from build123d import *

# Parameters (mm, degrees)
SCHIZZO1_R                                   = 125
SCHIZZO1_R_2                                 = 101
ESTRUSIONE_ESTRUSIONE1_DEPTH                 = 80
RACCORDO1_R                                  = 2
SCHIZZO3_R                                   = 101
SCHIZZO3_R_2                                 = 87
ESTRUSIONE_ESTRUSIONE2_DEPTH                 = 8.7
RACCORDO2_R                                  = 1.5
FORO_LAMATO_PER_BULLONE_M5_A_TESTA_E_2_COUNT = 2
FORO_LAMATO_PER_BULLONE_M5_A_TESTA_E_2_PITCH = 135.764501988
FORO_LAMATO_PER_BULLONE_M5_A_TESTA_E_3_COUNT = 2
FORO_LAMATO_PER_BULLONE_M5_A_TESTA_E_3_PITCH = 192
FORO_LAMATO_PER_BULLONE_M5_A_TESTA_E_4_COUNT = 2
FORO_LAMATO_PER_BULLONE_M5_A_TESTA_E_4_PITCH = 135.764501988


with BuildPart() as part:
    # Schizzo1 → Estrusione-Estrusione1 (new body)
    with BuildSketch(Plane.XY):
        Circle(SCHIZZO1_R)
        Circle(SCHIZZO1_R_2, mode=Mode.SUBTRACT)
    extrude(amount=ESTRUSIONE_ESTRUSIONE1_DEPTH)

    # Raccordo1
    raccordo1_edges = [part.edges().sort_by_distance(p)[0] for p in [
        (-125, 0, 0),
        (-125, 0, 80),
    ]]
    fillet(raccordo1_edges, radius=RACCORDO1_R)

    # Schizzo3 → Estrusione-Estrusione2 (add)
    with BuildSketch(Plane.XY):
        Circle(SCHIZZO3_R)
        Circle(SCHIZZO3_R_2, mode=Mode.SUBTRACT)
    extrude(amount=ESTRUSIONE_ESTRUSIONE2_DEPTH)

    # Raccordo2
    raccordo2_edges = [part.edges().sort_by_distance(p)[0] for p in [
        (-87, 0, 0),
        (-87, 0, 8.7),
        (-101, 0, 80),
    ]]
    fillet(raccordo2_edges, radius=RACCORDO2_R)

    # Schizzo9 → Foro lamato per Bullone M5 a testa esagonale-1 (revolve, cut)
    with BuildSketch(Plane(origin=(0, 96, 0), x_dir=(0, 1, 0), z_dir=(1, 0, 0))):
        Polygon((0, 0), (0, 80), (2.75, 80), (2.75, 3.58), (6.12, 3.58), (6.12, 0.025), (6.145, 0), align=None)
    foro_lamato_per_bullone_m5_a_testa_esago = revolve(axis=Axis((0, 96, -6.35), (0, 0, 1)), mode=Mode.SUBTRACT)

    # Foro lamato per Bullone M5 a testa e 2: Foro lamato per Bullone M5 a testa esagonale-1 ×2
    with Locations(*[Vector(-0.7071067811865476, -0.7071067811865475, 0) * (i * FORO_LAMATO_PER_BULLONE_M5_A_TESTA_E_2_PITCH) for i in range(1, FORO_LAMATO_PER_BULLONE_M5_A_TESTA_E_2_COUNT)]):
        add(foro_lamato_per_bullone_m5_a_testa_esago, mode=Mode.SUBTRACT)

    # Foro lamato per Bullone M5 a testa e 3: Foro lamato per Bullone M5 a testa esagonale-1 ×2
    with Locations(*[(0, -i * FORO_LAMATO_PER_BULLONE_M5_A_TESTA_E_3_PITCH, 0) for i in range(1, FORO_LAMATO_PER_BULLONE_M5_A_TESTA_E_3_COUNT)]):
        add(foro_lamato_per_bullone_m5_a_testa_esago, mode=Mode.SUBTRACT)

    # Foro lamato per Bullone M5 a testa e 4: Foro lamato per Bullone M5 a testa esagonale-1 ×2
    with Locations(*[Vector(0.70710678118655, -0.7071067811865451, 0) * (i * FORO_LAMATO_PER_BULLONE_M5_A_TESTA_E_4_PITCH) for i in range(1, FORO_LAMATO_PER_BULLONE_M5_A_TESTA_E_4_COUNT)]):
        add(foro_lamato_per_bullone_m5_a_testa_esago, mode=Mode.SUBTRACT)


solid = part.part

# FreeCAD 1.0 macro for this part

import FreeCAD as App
import Part
import Sketcher

V = App.Vector
Q = App.Units.Quantity


def edges_at(feature, points):
    """Names of the edges that pass closest to the given points."""
    edges = feature.Shape.Edges
    near = lambda p: min(range(len(edges)), key=lambda i: edges[i].distToShape(Part.Vertex(*p))[0])
    return sorted({f"Edge{near(p) + 1}" for p in points})

doc = App.newDocument("Part")
body = doc.addObject("PartDesign::Body", "Body")

# Sketch on XY plane
sketch1 = doc.addObject("Sketcher::SketchObject", "Sketch")
body.addObject(sketch1)
sketch1.AttachmentSupport = (doc.XY_Plane, [""])
sketch1.MapMode = "FlatFace"
sketch1.addGeometry(Part.Circle(V(0, 0, 0), V(0, 0, 1), 125), False)
sketch1.addGeometry(Part.Circle(V(0, 0, 0), V(0, 0, 1), 101), False)
sketch1.addConstraint(Sketcher.Constraint("Coincident", 0, 3, -1, 1))
sketch1.addConstraint(Sketcher.Constraint("Coincident", 1, 3, -1, 1))
sketch1.addConstraint(Sketcher.Constraint("Diameter", 0, Q("250 mm")))
sketch1.addConstraint(Sketcher.Constraint("Diameter", 1, Q("202 mm")))
pad1 = doc.addObject("PartDesign::Pad", "Pad")
body.addObject(pad1)
pad1.Profile = sketch1
pad1.Length = 80
doc.recompute()

fillet = doc.addObject("PartDesign::Fillet", "Fillet")
body.addObject(fillet)
fillet.Base = (pad1, edges_at(pad1, [(-125, 0, 0), (-125, 0, 80)]))
fillet.Radius = 2

# Sketch on XY plane
sketch2 = doc.addObject("Sketcher::SketchObject", "Sketch001")
body.addObject(sketch2)
sketch2.AttachmentSupport = (doc.XY_Plane, [""])
sketch2.MapMode = "FlatFace"
sketch2.addGeometry(Part.Circle(V(0, 0, 0), V(0, 0, 1), 101), False)
sketch2.addGeometry(Part.Circle(V(0, 0, 0), V(0, 0, 1), 87), False)
sketch2.addConstraint(Sketcher.Constraint("Coincident", 0, 3, -1, 1))
sketch2.addConstraint(Sketcher.Constraint("Coincident", 1, 3, -1, 1))
sketch2.addConstraint(Sketcher.Constraint("Diameter", 0, Q("202 mm")))
sketch2.addConstraint(Sketcher.Constraint("Diameter", 1, Q("174 mm")))
pad2 = doc.addObject("PartDesign::Pad", "Pad001")
body.addObject(pad2)
pad2.Profile = sketch2
pad2.Length = 8.7
doc.recompute()

fillet2 = doc.addObject("PartDesign::Fillet", "Fillet001")
body.addObject(fillet2)
fillet2.Base = (pad2, edges_at(pad2, [(-87, 0, 0), (-87, 0, 8.7), (-101, 0, 80)]))
fillet2.Radius = 1.5

# Sketch on YZ plane
sketch3 = doc.addObject("Sketcher::SketchObject", "Sketch002")
body.addObject(sketch3)
sketch3.AttachmentSupport = (doc.YZ_Plane, [""])
sketch3.MapMode = "FlatFace"
sketch3.addGeometry(Part.LineSegment(V(96, 80, 0), V(96, 0, 0)), False)
sketch3.addGeometry(Part.LineSegment(V(96, 0, 0), V(102.145, 0, 0)), False)
sketch3.addGeometry(Part.LineSegment(V(102.145, 0, 0), V(102.12, 0.025, 0)), False)
sketch3.addGeometry(Part.LineSegment(V(102.12, 0.025, 0), V(102.12, 3.58, 0)), False)
sketch3.addGeometry(Part.LineSegment(V(102.12, 3.58, 0), V(98.75, 3.58, 0)), False)
sketch3.addGeometry(Part.LineSegment(V(98.75, 3.58, 0), V(98.75, 80, 0)), False)
sketch3.addGeometry(Part.LineSegment(V(98.75, 80, 0), V(96, 80, 0)), False)
sketch3.addGeometry(Part.LineSegment(V(96, 0, 0), V(96, 80, 0)), True)  # axis
sketch3.addConstraint(Sketcher.Constraint("Coincident", 0, 2, 1, 1))
sketch3.addConstraint(Sketcher.Constraint("Coincident", 1, 2, 2, 1))
sketch3.addConstraint(Sketcher.Constraint("Coincident", 2, 2, 3, 1))
sketch3.addConstraint(Sketcher.Constraint("Coincident", 3, 2, 4, 1))
sketch3.addConstraint(Sketcher.Constraint("Coincident", 4, 2, 5, 1))
sketch3.addConstraint(Sketcher.Constraint("Coincident", 5, 2, 6, 1))
sketch3.addConstraint(Sketcher.Constraint("Coincident", 6, 2, 0, 1))
sketch3.addConstraint(Sketcher.Constraint("Vertical", 0))
sketch3.addConstraint(Sketcher.Constraint("Horizontal", 1))
sketch3.addConstraint(Sketcher.Constraint("Vertical", 3))
sketch3.addConstraint(Sketcher.Constraint("Horizontal", 4))
sketch3.addConstraint(Sketcher.Constraint("Vertical", 5))
sketch3.addConstraint(Sketcher.Constraint("Horizontal", 6))
sketch3.addConstraint(Sketcher.Constraint("Vertical", 7))
sketch3.addConstraint(Sketcher.Constraint("Coincident", 7, 1, 0, 2))
sketch3.addConstraint(Sketcher.Constraint("PointOnObject", 0, 2, -1))
sketch3.addConstraint(Sketcher.Constraint("Horizontal", 5, 2, 7, 2))
sketch3.addConstraint(Sketcher.Constraint("DistanceY", 0, 2, 0, 1, Q("80 mm")))
sketch3.addConstraint(Sketcher.Constraint("Angle", 2, Q("135 deg")))
sketch3.addConstraint(Sketcher.Constraint("DistanceX", -1, 1, 0, 2, Q("96 mm")))
sketch3.addConstraint(Sketcher.Constraint("DistanceX", 4, 2, 4, 1, Q("3.37 mm")))
sketch3.addConstraint(Sketcher.Constraint("DistanceX", 6, 2, 6, 1, Q("2.75 mm")))
sketch3.addConstraint(Sketcher.Constraint("DistanceY", 5, 1, 5, 2, Q("76.42 mm")))
sketch3.addConstraint(Sketcher.Constraint("DistanceX", 1, 1, 1, 2, Q("6.145 mm")))
groove = doc.addObject("PartDesign::Groove", "Groove")
body.addObject(groove)
groove.Profile = sketch3
groove.ReferenceAxis = (sketch3, ["Axis0"])
groove.Angle = 360
doc.recompute()

datumline = doc.addObject("PartDesign::Line", "DatumLine")
body.addObject(datumline)
datumline.Placement = App.Placement(V(0, 0, 0), App.Rotation(V(0, 0, 1), V(-0.707106781, -0.707106781, 0)))
linearpattern = doc.addObject("PartDesign::LinearPattern", "LinearPattern")
body.addObject(linearpattern)
linearpattern.Originals = [groove]
linearpattern.Direction = (datumline, [""])
linearpattern.Mode = "offset"
linearpattern.Offset = 135.764502
linearpattern.Occurrences = 2
body.Tip = linearpattern
doc.recompute()

linearpattern2 = doc.addObject("PartDesign::LinearPattern", "LinearPattern001")
body.addObject(linearpattern2)
linearpattern2.Originals = [groove]
linearpattern2.Direction = (doc.Y_Axis, [""])
linearpattern2.Mode = "offset"
linearpattern2.Offset = 192
linearpattern2.Occurrences = 2
linearpattern2.Reversed = True
body.Tip = linearpattern2
doc.recompute()

datumline2 = doc.addObject("PartDesign::Line", "DatumLine001")
body.addObject(datumline2)
datumline2.Placement = App.Placement(V(0, 0, 0), App.Rotation(V(0, 0, 1), V(0.707106781, -0.707106781, 0)))
linearpattern3 = doc.addObject("PartDesign::LinearPattern", "LinearPattern002")
body.addObject(linearpattern3)
linearpattern3.Originals = [groove]
linearpattern3.Direction = (datumline2, [""])
linearpattern3.Mode = "offset"
linearpattern3.Offset = 135.764502
linearpattern3.Occurrences = 2
body.Tip = linearpattern3

doc.recompute()
